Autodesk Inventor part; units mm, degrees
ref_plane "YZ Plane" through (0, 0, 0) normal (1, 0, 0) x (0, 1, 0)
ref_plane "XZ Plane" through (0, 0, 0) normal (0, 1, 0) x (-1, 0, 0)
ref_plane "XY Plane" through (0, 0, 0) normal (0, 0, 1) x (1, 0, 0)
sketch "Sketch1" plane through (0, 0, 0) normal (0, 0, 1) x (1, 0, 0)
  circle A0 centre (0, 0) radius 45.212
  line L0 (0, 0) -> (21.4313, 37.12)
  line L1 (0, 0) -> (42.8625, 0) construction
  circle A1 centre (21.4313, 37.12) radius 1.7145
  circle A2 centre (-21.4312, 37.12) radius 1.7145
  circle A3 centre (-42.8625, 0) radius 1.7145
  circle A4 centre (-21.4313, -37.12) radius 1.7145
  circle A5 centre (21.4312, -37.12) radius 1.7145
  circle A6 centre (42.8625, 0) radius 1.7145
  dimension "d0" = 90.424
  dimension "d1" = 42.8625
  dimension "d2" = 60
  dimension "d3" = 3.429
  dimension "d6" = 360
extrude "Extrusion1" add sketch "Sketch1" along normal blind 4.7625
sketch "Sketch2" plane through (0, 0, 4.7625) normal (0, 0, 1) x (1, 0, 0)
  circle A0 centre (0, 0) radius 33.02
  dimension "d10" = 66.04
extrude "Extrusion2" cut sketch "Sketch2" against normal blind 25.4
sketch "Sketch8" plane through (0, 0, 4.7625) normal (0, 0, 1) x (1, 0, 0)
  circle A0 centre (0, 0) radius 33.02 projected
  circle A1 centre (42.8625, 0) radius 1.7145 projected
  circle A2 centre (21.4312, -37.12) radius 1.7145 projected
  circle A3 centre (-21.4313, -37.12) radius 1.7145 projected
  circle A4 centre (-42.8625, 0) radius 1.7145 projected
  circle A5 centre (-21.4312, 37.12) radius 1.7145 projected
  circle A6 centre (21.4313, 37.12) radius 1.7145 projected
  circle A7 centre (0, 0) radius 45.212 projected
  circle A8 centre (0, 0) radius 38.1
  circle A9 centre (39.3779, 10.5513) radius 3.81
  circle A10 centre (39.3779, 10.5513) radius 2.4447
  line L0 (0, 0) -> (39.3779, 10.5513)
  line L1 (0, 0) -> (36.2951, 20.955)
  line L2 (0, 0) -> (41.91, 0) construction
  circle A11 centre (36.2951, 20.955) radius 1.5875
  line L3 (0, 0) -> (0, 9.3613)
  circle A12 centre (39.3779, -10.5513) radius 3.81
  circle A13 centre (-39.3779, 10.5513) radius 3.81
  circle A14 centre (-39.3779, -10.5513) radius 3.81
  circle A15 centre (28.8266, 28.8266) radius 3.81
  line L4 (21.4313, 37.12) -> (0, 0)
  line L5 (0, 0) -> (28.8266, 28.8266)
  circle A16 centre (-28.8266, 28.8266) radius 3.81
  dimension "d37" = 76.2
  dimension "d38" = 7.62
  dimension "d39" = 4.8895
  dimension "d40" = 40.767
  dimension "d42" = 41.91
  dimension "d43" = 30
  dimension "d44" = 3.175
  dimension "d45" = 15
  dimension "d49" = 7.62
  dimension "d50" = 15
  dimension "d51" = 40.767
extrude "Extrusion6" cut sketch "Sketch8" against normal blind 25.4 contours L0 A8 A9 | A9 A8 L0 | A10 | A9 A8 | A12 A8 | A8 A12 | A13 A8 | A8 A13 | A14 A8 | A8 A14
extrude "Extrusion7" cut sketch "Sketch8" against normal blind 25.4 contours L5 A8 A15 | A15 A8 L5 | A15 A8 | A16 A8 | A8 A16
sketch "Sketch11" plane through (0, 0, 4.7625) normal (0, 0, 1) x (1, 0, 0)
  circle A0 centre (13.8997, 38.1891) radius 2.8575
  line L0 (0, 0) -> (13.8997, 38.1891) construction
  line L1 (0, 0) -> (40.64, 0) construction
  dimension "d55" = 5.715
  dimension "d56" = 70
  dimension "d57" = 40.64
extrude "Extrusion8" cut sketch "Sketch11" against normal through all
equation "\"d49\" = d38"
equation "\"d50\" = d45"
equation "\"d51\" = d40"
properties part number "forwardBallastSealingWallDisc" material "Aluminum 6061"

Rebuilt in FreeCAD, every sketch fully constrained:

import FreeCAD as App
import Part
import Sketcher
from FreeCAD import Vector
Q = App.Units.Quantity

doc = App.newDocument("Part")
body = doc.addObject("PartDesign::Body", "Body")

sketch1 = body.newObject("Sketcher::SketchObject", "Sketch")
sketch1.AttachmentSupport = (doc.getObject("XY_Plane"), [""])
sketch1.MapMode = "FlatFace"
sketch1.addGeometry(Part.Circle(Vector(0, 0, 0), Vector(0, 0, 1), 45.2), False)
sketch1.addGeometry(Part.Circle(Vector(-21.4, -37.1, 0), Vector(0, 0, 1), 1.7), False)
sketch1.addGeometry(Part.Circle(Vector(21.4, -37.1, 0), Vector(0, 0, 1), 1.7), False)
sketch1.addGeometry(Part.Circle(Vector(-42.9, 0, 0), Vector(0, 0, 1), 1.7), False)
sketch1.addGeometry(Part.Circle(Vector(-21.4, 37.1, 0), Vector(0, 0, 1), 1.7), False)
sketch1.addGeometry(Part.Circle(Vector(42.9, 0, 0), Vector(0, 0, 1), 1.7), False)
sketch1.addGeometry(Part.Circle(Vector(21.4, 37.1, 0), Vector(0, 0, 1), 1.7), False)
sketch1.addConstraint(Sketcher.Constraint("Coincident", 0, 3, -1, 1))
sketch1.addConstraint(Sketcher.Constraint("Equal", 1, 2))
sketch1.addConstraint(Sketcher.Constraint("Equal", 2, 3))
sketch1.addConstraint(Sketcher.Constraint("Equal", 3, 4))
sketch1.addConstraint(Sketcher.Constraint("Equal", 4, 5))
sketch1.addConstraint(Sketcher.Constraint("Equal", 5, 6))
sketch1.addConstraint(Sketcher.Constraint("Symmetric", 2, 3, 4, 3, -1, 1))
sketch1.addConstraint(Sketcher.Constraint("Symmetric", 3, 3, 5, 3, -1, 1))
sketch1.addConstraint(Sketcher.Constraint("Symmetric", 1, 3, 6, 3, -1, 1))
sketch1.addConstraint(Sketcher.Constraint("Symmetric", 1, 3, 2, 3, -2))
sketch1.addConstraint(Sketcher.Constraint("PointOnObject", 3, 3, -1))
sketch1.addConstraint(Sketcher.Constraint("Diameter", 0, Q("3.56 in")))
sketch1.addConstraint(Sketcher.Constraint("Diameter", 1, Q("0.135 in")))
sketch1.addConstraint(Sketcher.Constraint("DistanceX", 3, 3, -1, 1, Q("1.6875 in")))
sketch1.addConstraint(Sketcher.Constraint("DistanceX", 1, 3, 2, 3, Q("1.6875 in")))
sketch1.addConstraint(Sketcher.Constraint("DistanceY", 1, 3, -1, 1, Q("37.12 mm")))
pad1 = body.newObject("PartDesign::Pad", "Pad")
pad1.Profile = sketch1
pad1.Length = Q("0.1875 in")

sketch2 = body.newObject("Sketcher::SketchObject", "Sketch001")
sketch2.AttachmentSupport = (doc.getObject("XY_Plane"), [""])
sketch2.MapMode = "FlatFace"
sketch2.AttachmentOffset = App.Placement(Vector(0, 0, 0.1875 * 25.4), App.Rotation())
sketch2.addGeometry(Part.Circle(Vector(0, 0, 0), Vector(0, 0, 1), 33), False)
sketch2.addConstraint(Sketcher.Constraint("Coincident", 0, 3, -1, 1))
sketch2.addConstraint(Sketcher.Constraint("Diameter", 0, Q("2.6 in")))
pocket1 = body.newObject("PartDesign::Pocket", "Pocket")
pocket1.Profile = sketch2
pocket1.Length = Q("1 in")

sketch3 = body.newObject("Sketcher::SketchObject", "Sketch002")
sketch3.AttachmentSupport = (doc.getObject("XY_Plane"), [""])
sketch3.MapMode = "FlatFace"
sketch3.AttachmentOffset = App.Placement(Vector(0, 0, 0.1875 * 25.4), App.Rotation())
sketch3.addGeometry(Part.Circle(Vector(39.4, 10.6, 0), Vector(0, 0, 1), 3.8), False)
sketch3.addGeometry(Part.Circle(Vector(39.4, -10.6, 0), Vector(0, 0, 1), 3.8), False)
sketch3.addGeometry(Part.Circle(Vector(-39.4, 10.6, 0), Vector(0, 0, 1), 3.8), False)
sketch3.addGeometry(Part.Circle(Vector(-39.4, -10.6, 0), Vector(0, 0, 1), 3.8), False)
sketch3.addConstraint(Sketcher.Constraint("Equal", 0, 1))
sketch3.addConstraint(Sketcher.Constraint("Equal", 1, 2))
sketch3.addConstraint(Sketcher.Constraint("Equal", 2, 3))
sketch3.addConstraint(Sketcher.Constraint("Symmetric", 1, 3, 2, 3, -1, 1))
sketch3.addConstraint(Sketcher.Constraint("Symmetric", 0, 3, 3, 3, -1, 1))
sketch3.addConstraint(Sketcher.Constraint("Symmetric", 0, 3, 2, 3, -2))
sketch3.addConstraint(Sketcher.Constraint("Diameter", 0, Q("0.3 in")))
sketch3.addConstraint(Sketcher.Constraint("DistanceX", -1, 1, 0, 3, Q("1.5503 in")))
sketch3.addConstraint(Sketcher.Constraint("DistanceY", -1, 1, 0, 3, Q("0.4154 in")))
pocket2 = body.newObject("PartDesign::Pocket", "Pocket001")
pocket2.Profile = sketch3
pocket2.Length = Q("1 in")

sketch4 = body.newObject("Sketcher::SketchObject", "Sketch003")
sketch4.AttachmentSupport = (doc.getObject("XY_Plane"), [""])
sketch4.MapMode = "FlatFace"
sketch4.AttachmentOffset = App.Placement(Vector(0, 0, 0.1875 * 25.4), App.Rotation())
sketch4.addGeometry(Part.Circle(Vector(28.8, 28.8, 0), Vector(0, 0, 1), 3.8), False)
sketch4.addGeometry(Part.Circle(Vector(-28.8, 28.8, 0), Vector(0, 0, 1), 3.8), False)
sketch4.addConstraint(Sketcher.Constraint("Equal", 0, 1))
sketch4.addConstraint(Sketcher.Constraint("Symmetric", 0, 3, 1, 3, -2))
sketch4.addConstraint(Sketcher.Constraint("Diameter", 0, Q("0.3 in")))
sketch4.addConstraint(Sketcher.Constraint("DistanceX", -1, 1, 0, 3, Q("1.1349 in")))
sketch4.addConstraint(Sketcher.Constraint("DistanceY", -1, 1, 0, 3, Q("1.1349 in")))
pocket3 = body.newObject("PartDesign::Pocket", "Pocket002")
pocket3.Profile = sketch4
pocket3.Length = Q("1 in")

sketch5 = body.newObject("Sketcher::SketchObject", "Sketch004")
sketch5.AttachmentSupport = (doc.getObject("XY_Plane"), [""])
sketch5.MapMode = "FlatFace"
sketch5.AttachmentOffset = App.Placement(Vector(0, 0, 0.1875 * 25.4), App.Rotation())
sketch5.addGeometry(Part.Circle(Vector(13.9, 38.2, 0), Vector(0, 0, 1), 2.9), False)
sketch5.addConstraint(Sketcher.Constraint("Diameter", 0, Q("0.225 in")))
sketch5.addConstraint(Sketcher.Constraint("DistanceY", -1, 1, 0, 3, Q("1.5035 in")))
sketch5.addConstraint(Sketcher.Constraint("DistanceX", -1, 1, 0, 3, Q("13.8997 mm")))
pocket4 = body.newObject("PartDesign::Pocket", "Pocket003")
pocket4.Profile = sketch5
pocket4.Type = "ThroughAll"

doc.recompute()
